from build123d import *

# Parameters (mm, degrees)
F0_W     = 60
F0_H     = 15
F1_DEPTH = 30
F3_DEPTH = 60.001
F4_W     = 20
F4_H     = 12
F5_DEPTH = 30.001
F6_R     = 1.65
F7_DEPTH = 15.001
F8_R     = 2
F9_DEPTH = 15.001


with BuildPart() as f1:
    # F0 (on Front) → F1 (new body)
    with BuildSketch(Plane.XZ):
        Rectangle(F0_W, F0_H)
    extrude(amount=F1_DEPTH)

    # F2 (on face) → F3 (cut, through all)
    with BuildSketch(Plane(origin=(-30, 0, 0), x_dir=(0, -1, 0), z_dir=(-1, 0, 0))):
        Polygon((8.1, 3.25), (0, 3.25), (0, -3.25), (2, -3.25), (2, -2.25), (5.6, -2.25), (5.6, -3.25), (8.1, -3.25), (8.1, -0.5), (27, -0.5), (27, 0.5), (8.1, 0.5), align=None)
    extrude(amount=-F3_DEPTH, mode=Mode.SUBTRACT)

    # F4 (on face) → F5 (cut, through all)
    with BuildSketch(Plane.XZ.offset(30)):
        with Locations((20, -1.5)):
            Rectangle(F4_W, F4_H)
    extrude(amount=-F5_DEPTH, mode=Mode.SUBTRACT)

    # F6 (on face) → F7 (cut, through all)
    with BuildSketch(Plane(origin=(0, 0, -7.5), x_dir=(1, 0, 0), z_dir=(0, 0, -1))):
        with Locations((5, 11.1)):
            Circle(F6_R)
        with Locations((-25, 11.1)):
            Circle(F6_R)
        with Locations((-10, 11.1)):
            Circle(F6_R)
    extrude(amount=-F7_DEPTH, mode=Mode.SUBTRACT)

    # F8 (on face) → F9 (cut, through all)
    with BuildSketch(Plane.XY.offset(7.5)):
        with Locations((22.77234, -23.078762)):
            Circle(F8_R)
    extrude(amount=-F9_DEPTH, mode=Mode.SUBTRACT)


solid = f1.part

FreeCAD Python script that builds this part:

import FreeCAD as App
import Part
import Sketcher
from FreeCAD import Vector

doc = App.newDocument("Part")
body = doc.addObject("PartDesign::Body", "Body")

sketch1 = body.newObject("Sketcher::SketchObject", "Sketch")
sketch1.AttachmentSupport = (doc.getObject("XZ_Plane"), [""])
sketch1.MapMode = "FlatFace"
sketch1.addGeometry([
    Part.LineSegment(Vector(-30, 8, 0), Vector(-30, -8, 0)),
    Part.LineSegment(Vector(-30, -8, 0), Vector(30, -8, 0)),
    Part.LineSegment(Vector(30, -8, 0), Vector(30, 8, 0)),
    Part.LineSegment(Vector(30, 8, 0), Vector(-30, 8, 0)),
], False)
sketch1.addConstraint([
    Sketcher.Constraint("Coincident", 0, 2, 1, 1),
    Sketcher.Constraint("Coincident", 1, 2, 2, 1),
    Sketcher.Constraint("Coincident", 2, 2, 3, 1),
    Sketcher.Constraint("Coincident", 3, 2, 0, 1),
    Sketcher.Constraint("Vertical", 0),
    Sketcher.Constraint("Horizontal", 1),
    Sketcher.Constraint("Vertical", 2),
    Sketcher.Constraint("Horizontal", 3),
    Sketcher.Constraint("Symmetric", 0, 2, 2, 2, -1, 1),
    Sketcher.Constraint("DistanceX", 1, 1, 1, 2, 60.0),
    Sketcher.Constraint("DistanceY", 0, 2, 0, 1, 15.0),
])
pad1 = body.newObject("PartDesign::Pad", "Pad")
pad1.Profile = sketch1
pad1.Length = 30

sketch2 = body.newObject("Sketcher::SketchObject", "Sketch001")
sketch2.AttachmentSupport = (doc.getObject("YZ_Plane"), [""])
sketch2.MapMode = "FlatFace"
sketch2.AttachmentOffset = App.Placement(Vector(0, 0, -30), App.Rotation())
sketch2.addGeometry([
    Part.LineSegment(Vector(-8.1, 3.2, 0), Vector(0, 3.2, 0)),
    Part.LineSegment(Vector(0, 3.2, 0), Vector(0, -3.2, 0)),
    Part.LineSegment(Vector(0, -3.2, 0), Vector(-2, -3.2, 0)),
    Part.LineSegment(Vector(-2, -3.2, 0), Vector(-2, -2.2, 0)),
    Part.LineSegment(Vector(-2, -2.2, 0), Vector(-5.6, -2.2, 0)),
    Part.LineSegment(Vector(-5.6, -2.2, 0), Vector(-5.6, -3.2, 0)),
    Part.LineSegment(Vector(-5.6, -3.2, 0), Vector(-8.1, -3.2, 0)),
    Part.LineSegment(Vector(-8.1, -3.2, 0), Vector(-8.1, -0.5, 0)),
    Part.LineSegment(Vector(-8.1, -0.5, 0), Vector(-27, -0.5, 0)),
    Part.LineSegment(Vector(-27, -0.5, 0), Vector(-27, 0.5, 0)),
    Part.LineSegment(Vector(-27, 0.5, 0), Vector(-8.1, 0.5, 0)),
    Part.LineSegment(Vector(-8.1, 0.5, 0), Vector(-8.1, 3.2, 0)),
], False)
sketch2.addConstraint([
    Sketcher.Constraint("Coincident", 0, 2, 1, 1),
    Sketcher.Constraint("Coincident", 1, 2, 2, 1),
    Sketcher.Constraint("Coincident", 2, 2, 3, 1),
    Sketcher.Constraint("Coincident", 3, 2, 4, 1),
    Sketcher.Constraint("Coincident", 4, 2, 5, 1),
    Sketcher.Constraint("Coincident", 5, 2, 6, 1),
    Sketcher.Constraint("Coincident", 6, 2, 7, 1),
    Sketcher.Constraint("Coincident", 7, 2, 8, 1),
    Sketcher.Constraint("Coincident", 8, 2, 9, 1),
    Sketcher.Constraint("Coincident", 9, 2, 10, 1),
    Sketcher.Constraint("Coincident", 10, 2, 11, 1),
    Sketcher.Constraint("Coincident", 11, 2, 0, 1),
    Sketcher.Constraint("Horizontal", 0),
    Sketcher.Constraint("Vertical", 1),
    Sketcher.Constraint("Horizontal", 2),
    Sketcher.Constraint("Vertical", 3),
    Sketcher.Constraint("Horizontal", 4),
    Sketcher.Constraint("Vertical", 5),
    Sketcher.Constraint("Horizontal", 6),
    Sketcher.Constraint("Vertical", 7),
    Sketcher.Constraint("Horizontal", 8),
    Sketcher.Constraint("Vertical", 9),
    Sketcher.Constraint("Horizontal", 10),
    Sketcher.Constraint("Vertical", 11),
    Sketcher.Constraint("Symmetric", 0, 2, 1, 2, -1, 1),
    Sketcher.Constraint("Symmetric", 7, 2, 10, 2, -1),
    Sketcher.Constraint("Horizontal", 2, 2, 5, 2),
    Sketcher.Constraint("Equal", 5, 9),
    Sketcher.Constraint("DistanceX", 2, 2, 2, 1, 2.0),
    Sketcher.Constraint("DistanceY", 3, 1, 3, 2, 1.0),
    Sketcher.Constraint("DistanceX", 0, 1, 0, 2, 8.1),
    Sketcher.Constraint("DistanceX", 4, 2, 4, 1, 3.6),
    Sketcher.Constraint("DistanceX", 8, 2, 8, 1, 18.9),
    Sketcher.Constraint("DistanceY", 1, 2, 1, 1, 6.5),
])
pocket1 = body.newObject("PartDesign::Pocket", "Pocket")
pocket1.Profile = sketch2
pocket1.Type = "ThroughAll"
pocket1.Reversed = True

sketch3 = body.newObject("Sketcher::SketchObject", "Sketch002")
sketch3.AttachmentSupport = (doc.getObject("XZ_Plane"), [""])
sketch3.MapMode = "FlatFace"
sketch3.AttachmentOffset = App.Placement(Vector(0, 0, 30), App.Rotation())
sketch3.addGeometry([
    Part.LineSegment(Vector(10, 4, 0), Vector(10, -8, 0)),
    Part.LineSegment(Vector(10, -8, 0), Vector(30, -8, 0)),
    Part.LineSegment(Vector(30, -8, 0), Vector(30, 4, 0)),
    Part.LineSegment(Vector(30, 4, 0), Vector(10, 4, 0)),
], False)
sketch3.addConstraint([
    Sketcher.Constraint("Coincident", 0, 2, 1, 1),
    Sketcher.Constraint("Coincident", 1, 2, 2, 1),
    Sketcher.Constraint("Coincident", 2, 2, 3, 1),
    Sketcher.Constraint("Coincident", 3, 2, 0, 1),
    Sketcher.Constraint("Vertical", 0),
    Sketcher.Constraint("Horizontal", 1),
    Sketcher.Constraint("Vertical", 2),
    Sketcher.Constraint("Horizontal", 3),
    Sketcher.Constraint("DistanceX", 1, 1, 1, 2, 20.0),
    Sketcher.Constraint("DistanceY", 0, 2, 0, 1, 12.0),
    Sketcher.Constraint("DistanceX", -1, 1, 0, 2, 10.0),
    Sketcher.Constraint("DistanceY", 0, 2, -1, 1, 7.5),
])
pocket2 = body.newObject("PartDesign::Pocket", "Pocket001")
pocket2.Profile = sketch3
pocket2.Type = "ThroughAll"

sketch4 = body.newObject("Sketcher::SketchObject", "Sketch003")
sketch4.AttachmentSupport = (doc.getObject("XY_Plane"), [""])
sketch4.MapMode = "FlatFace"
sketch4.AttachmentOffset = App.Placement(Vector(0, 0, -7.5), App.Rotation())
sketch4.addGeometry([
    Part.Circle(Vector(5, -11.1, 0), Vector(0, 0, 1), 1.6),
    Part.Circle(Vector(-25, -11.1, 0), Vector(0, 0, 1), 1.6),
    Part.Circle(Vector(-10, -11.1, 0), Vector(0, 0, 1), 1.6),
], False)
sketch4.addConstraint([
    Sketcher.Constraint("Equal", 0, 1),
    Sketcher.Constraint("Equal", 1, 2),
    Sketcher.Constraint("Horizontal", 0, 3, 1, 3),
    Sketcher.Constraint("Horizontal", 1, 3, 2, 3),
    Sketcher.Constraint("Diameter", 0, 3.3),
    Sketcher.Constraint("DistanceX", -1, 1, 0, 3, 5.0),
    Sketcher.Constraint("DistanceX", 1, 3, -1, 1, 25.0),
    Sketcher.Constraint("DistanceX", 2, 3, -1, 1, 10.0),
    Sketcher.Constraint("DistanceY", 0, 3, -1, 1, 11.1),
])
pocket3 = body.newObject("PartDesign::Pocket", "Pocket002")
pocket3.Profile = sketch4
pocket3.Type = "ThroughAll"
pocket3.Reversed = True

sketch5 = body.newObject("Sketcher::SketchObject", "Sketch004")
sketch5.AttachmentSupport = (doc.getObject("XY_Plane"), [""])
sketch5.MapMode = "FlatFace"
sketch5.AttachmentOffset = App.Placement(Vector(0, 0, 7.5), App.Rotation())
sketch5.addGeometry(Part.Circle(Vector(22.8, -23.1, 0), Vector(0, 0, 1), 2), False)
sketch5.addConstraint([
    Sketcher.Constraint("Diameter", 0, 4.0),
    Sketcher.Constraint("DistanceX", -1, 1, 0, 3, 22.77234),
    Sketcher.Constraint("DistanceY", 0, 3, -1, 1, 23.078762),
])
pocket4 = body.newObject("PartDesign::Pocket", "Pocket003")
pocket4.Profile = sketch5
pocket4.Type = "ThroughAll"

doc.recompute()
